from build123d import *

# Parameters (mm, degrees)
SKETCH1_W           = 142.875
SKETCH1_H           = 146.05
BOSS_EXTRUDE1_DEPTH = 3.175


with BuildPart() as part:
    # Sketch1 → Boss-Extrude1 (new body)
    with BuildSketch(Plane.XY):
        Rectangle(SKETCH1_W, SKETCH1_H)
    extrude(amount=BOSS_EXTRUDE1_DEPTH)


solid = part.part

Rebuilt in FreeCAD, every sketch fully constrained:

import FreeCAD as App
import Part
import Sketcher

V = App.Vector
Q = App.Units.Quantity

doc = App.newDocument("Part")
body = doc.addObject("PartDesign::Body", "Body")

# Sketch on XY plane
sketch1 = body.newObject("Sketcher::SketchObject", "Sketch")
sketch1.AttachmentSupport = (doc.getObject("XY_Plane"), [""])
sketch1.MapMode = "FlatFace"
sketch1.addGeometry([
    Part.LineSegment(V(-71, 73, 0), V(-71, -73, 0)),
    Part.LineSegment(V(-71, -73, 0), V(71, -73, 0)),
    Part.LineSegment(V(71, -73, 0), V(71, 73, 0)),
    Part.LineSegment(V(71, 73, 0), V(-71, 73, 0)),
], False)
sketch1.addConstraint([
    Sketcher.Constraint("Coincident", 0, 2, 1, 1),
    Sketcher.Constraint("Coincident", 1, 2, 2, 1),
    Sketcher.Constraint("Coincident", 2, 2, 3, 1),
    Sketcher.Constraint("Coincident", 3, 2, 0, 1),
    Sketcher.Constraint("Vertical", 0),
    Sketcher.Constraint("Horizontal", 1),
    Sketcher.Constraint("Vertical", 2),
    Sketcher.Constraint("Horizontal", 3),
    Sketcher.Constraint("Symmetric", 0, 2, 2, 2, -1, 1),
    Sketcher.Constraint("DistanceY", 0, 2, 0, 1, Q("5.75 in")),
    Sketcher.Constraint("DistanceX", 1, 1, 1, 2, Q("5.625 in")),
])
pad1 = body.newObject("PartDesign::Pad", "Pad")
pad1.Profile = sketch1
pad1.Length = Q("0.125 in")

doc.recompute()
